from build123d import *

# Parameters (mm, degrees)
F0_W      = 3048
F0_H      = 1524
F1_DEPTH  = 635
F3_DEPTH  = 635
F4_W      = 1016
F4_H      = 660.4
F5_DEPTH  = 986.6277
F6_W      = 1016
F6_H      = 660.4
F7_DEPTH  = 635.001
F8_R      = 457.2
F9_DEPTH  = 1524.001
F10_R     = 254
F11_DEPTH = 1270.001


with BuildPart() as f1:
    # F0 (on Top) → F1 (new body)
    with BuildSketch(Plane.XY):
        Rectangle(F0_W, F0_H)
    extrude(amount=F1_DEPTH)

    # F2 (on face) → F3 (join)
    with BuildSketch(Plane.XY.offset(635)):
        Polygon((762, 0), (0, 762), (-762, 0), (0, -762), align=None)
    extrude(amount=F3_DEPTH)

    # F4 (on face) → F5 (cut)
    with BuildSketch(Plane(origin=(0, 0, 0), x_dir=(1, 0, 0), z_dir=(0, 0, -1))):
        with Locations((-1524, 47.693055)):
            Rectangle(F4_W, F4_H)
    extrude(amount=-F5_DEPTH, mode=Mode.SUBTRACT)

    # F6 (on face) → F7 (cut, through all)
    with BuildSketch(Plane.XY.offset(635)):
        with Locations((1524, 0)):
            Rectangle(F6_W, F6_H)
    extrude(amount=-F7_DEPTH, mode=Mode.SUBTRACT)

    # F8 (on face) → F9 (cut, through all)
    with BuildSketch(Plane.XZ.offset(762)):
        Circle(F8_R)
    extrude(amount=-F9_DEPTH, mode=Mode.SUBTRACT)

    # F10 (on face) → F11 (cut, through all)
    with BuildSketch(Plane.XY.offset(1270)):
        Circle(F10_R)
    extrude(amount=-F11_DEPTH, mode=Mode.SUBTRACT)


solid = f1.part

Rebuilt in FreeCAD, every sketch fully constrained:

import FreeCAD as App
import Part
import Sketcher

V = App.Vector
Q = App.Units.Quantity


def add_polygon(sketch, points):
    """Adds a closed chain of lines whose ends are joined by coincident constraints."""
    first, n = sketch.GeometryCount, len(points)
    for a, b in zip(points, points[1:] + points[:1]):
        sketch.addGeometry(Part.LineSegment(App.Vector(*a, 0), App.Vector(*b, 0)), False)
    for i in range(n):
        sketch.addConstraint(Sketcher.Constraint("Coincident", first + i, 2, first + (i + 1) % n, 1))

doc = App.newDocument("Part")
body = doc.addObject("PartDesign::Body", "Body")

# Sketch on XY plane
sketch1 = doc.addObject("Sketcher::SketchObject", "Sketch")
body.addObject(sketch1)
sketch1.AttachmentSupport = (doc.XY_Plane, [""])
sketch1.MapMode = "FlatFace"
add_polygon(sketch1, [(-1524, 762), (-1524, -762), (1524, -762), (1524, 762)])  # lines 0-3
sketch1.addConstraint(Sketcher.Constraint("Vertical", 0))
sketch1.addConstraint(Sketcher.Constraint("Horizontal", 1))
sketch1.addConstraint(Sketcher.Constraint("Vertical", 2))
sketch1.addConstraint(Sketcher.Constraint("Horizontal", 3))
sketch1.addConstraint(Sketcher.Constraint("Symmetric", 0, 2, 2, 2, -1, 1))
sketch1.addConstraint(Sketcher.Constraint("DistanceX", 1, 1, 1, 2, Q("120 in")))
sketch1.addConstraint(Sketcher.Constraint("DistanceY", 0, 2, 0, 1, Q("60 in")))
pad1 = doc.addObject("PartDesign::Pad", "Pad")
body.addObject(pad1)
pad1.Profile = sketch1
pad1.Length = Q("25 in")

# Sketch on XY plane
sketch2 = doc.addObject("Sketcher::SketchObject", "Sketch001")
body.addObject(sketch2)
sketch2.AttachmentSupport = (doc.XY_Plane, [""])
sketch2.MapMode = "FlatFace"
sketch2.AttachmentOffset = App.Placement(V(0, 0, 25 * 25.4), App.Rotation())
add_polygon(sketch2, [(762, 0), (0, 762), (-762, 0), (0, -762)])  # lines 0-3
sketch2.addConstraint(Sketcher.Constraint("Symmetric", 0, 2, 2, 2, -1, 1))
sketch2.addConstraint(Sketcher.Constraint("Symmetric", 1, 2, 3, 2, -1, 1))
sketch2.addConstraint(Sketcher.Constraint("PointOnObject", 0, 2, -2))
sketch2.addConstraint(Sketcher.Constraint("PointOnObject", 1, 2, -1))
sketch2.addConstraint(Sketcher.Constraint("Perpendicular", 0, 1))
sketch2.addConstraint(Sketcher.Constraint("DistanceY", -1, 1, 0, 2, Q("30 in")))
pad2 = doc.addObject("PartDesign::Pad", "Pad001")
body.addObject(pad2)
pad2.Profile = sketch2
pad2.Length = Q("25 in")

# Sketch on XY plane
sketch3 = doc.addObject("Sketcher::SketchObject", "Sketch002")
body.addObject(sketch3)
sketch3.AttachmentSupport = (doc.XY_Plane, [""])
sketch3.MapMode = "FlatFace"
add_polygon(sketch3, [(-2032, -378), (-2032, 283), (-1016, 283), (-1016, -378)])  # lines 0-3
sketch3.addConstraint(Sketcher.Constraint("Vertical", 0))
sketch3.addConstraint(Sketcher.Constraint("Horizontal", 1))
sketch3.addConstraint(Sketcher.Constraint("Vertical", 2))
sketch3.addConstraint(Sketcher.Constraint("Horizontal", 3))
sketch3.addConstraint(Sketcher.Constraint("DistanceX", 1, 1, 1, 2, Q("40 in")))
sketch3.addConstraint(Sketcher.Constraint("DistanceY", 0, 1, 0, 2, Q("26 in")))
sketch3.addConstraint(Sketcher.Constraint("DistanceX", 0, 2, -1, 1, Q("80 in")))
sketch3.addConstraint(Sketcher.Constraint("DistanceY", -1, 1, 0, 2, 282.506945))
pocket1 = doc.addObject("PartDesign::Pocket", "Pocket")
body.addObject(pocket1)
pocket1.Profile = sketch3
pocket1.Length = 986.6277
pocket1.Reversed = True

# Sketch on XY plane
sketch4 = doc.addObject("Sketcher::SketchObject", "Sketch003")
body.addObject(sketch4)
sketch4.AttachmentSupport = (doc.XY_Plane, [""])
sketch4.MapMode = "FlatFace"
sketch4.AttachmentOffset = App.Placement(V(0, 0, 25 * 25.4), App.Rotation())
add_polygon(sketch4, [(1016, 330), (1016, -330), (2032, -330), (2032, 330)])  # lines 0-3
sketch4.addConstraint(Sketcher.Constraint("Vertical", 0))
sketch4.addConstraint(Sketcher.Constraint("Horizontal", 1))
sketch4.addConstraint(Sketcher.Constraint("Vertical", 2))
sketch4.addConstraint(Sketcher.Constraint("Horizontal", 3))
sketch4.addConstraint(Sketcher.Constraint("DistanceX", 1, 1, 1, 2, Q("40 in")))
sketch4.addConstraint(Sketcher.Constraint("DistanceY", 0, 2, 0, 1, Q("26 in")))
sketch4.addConstraint(Sketcher.Constraint("DistanceX", -1, 1, 0, 2, Q("40 in")))
sketch4.addConstraint(Sketcher.Constraint("DistanceY", 0, 2, -1, 1, Q("13 in")))
pocket2 = doc.addObject("PartDesign::Pocket", "Pocket001")
body.addObject(pocket2)
pocket2.Profile = sketch4
pocket2.Type = "ThroughAll"

# Sketch on XZ plane
sketch5 = doc.addObject("Sketcher::SketchObject", "Sketch004")
body.addObject(sketch5)
sketch5.AttachmentSupport = (doc.XZ_Plane, [""])
sketch5.MapMode = "FlatFace"
sketch5.AttachmentOffset = App.Placement(V(0, 0, 30 * 25.4), App.Rotation())
sketch5.addGeometry(Part.Circle(V(0, 0, 0), V(0, 0, 1), 457), False)
sketch5.addConstraint(Sketcher.Constraint("Coincident", 0, 3, -1, 1))
sketch5.addConstraint(Sketcher.Constraint("Diameter", 0, Q("36 in")))
pocket3 = doc.addObject("PartDesign::Pocket", "Pocket002")
body.addObject(pocket3)
pocket3.Profile = sketch5
pocket3.Type = "ThroughAll"

# Sketch on XY plane
sketch6 = doc.addObject("Sketcher::SketchObject", "Sketch005")
body.addObject(sketch6)
sketch6.AttachmentSupport = (doc.XY_Plane, [""])
sketch6.MapMode = "FlatFace"
sketch6.AttachmentOffset = App.Placement(V(0, 0, 50 * 25.4), App.Rotation())
sketch6.addGeometry(Part.Circle(V(0, 0, 0), V(0, 0, 1), 254), False)
sketch6.addConstraint(Sketcher.Constraint("Coincident", 0, 3, -1, 1))
sketch6.addConstraint(Sketcher.Constraint("Diameter", 0, Q("20 in")))
pocket4 = doc.addObject("PartDesign::Pocket", "Pocket003")
body.addObject(pocket4)
pocket4.Profile = sketch6
pocket4.Type = "ThroughAll"

doc.recompute()
